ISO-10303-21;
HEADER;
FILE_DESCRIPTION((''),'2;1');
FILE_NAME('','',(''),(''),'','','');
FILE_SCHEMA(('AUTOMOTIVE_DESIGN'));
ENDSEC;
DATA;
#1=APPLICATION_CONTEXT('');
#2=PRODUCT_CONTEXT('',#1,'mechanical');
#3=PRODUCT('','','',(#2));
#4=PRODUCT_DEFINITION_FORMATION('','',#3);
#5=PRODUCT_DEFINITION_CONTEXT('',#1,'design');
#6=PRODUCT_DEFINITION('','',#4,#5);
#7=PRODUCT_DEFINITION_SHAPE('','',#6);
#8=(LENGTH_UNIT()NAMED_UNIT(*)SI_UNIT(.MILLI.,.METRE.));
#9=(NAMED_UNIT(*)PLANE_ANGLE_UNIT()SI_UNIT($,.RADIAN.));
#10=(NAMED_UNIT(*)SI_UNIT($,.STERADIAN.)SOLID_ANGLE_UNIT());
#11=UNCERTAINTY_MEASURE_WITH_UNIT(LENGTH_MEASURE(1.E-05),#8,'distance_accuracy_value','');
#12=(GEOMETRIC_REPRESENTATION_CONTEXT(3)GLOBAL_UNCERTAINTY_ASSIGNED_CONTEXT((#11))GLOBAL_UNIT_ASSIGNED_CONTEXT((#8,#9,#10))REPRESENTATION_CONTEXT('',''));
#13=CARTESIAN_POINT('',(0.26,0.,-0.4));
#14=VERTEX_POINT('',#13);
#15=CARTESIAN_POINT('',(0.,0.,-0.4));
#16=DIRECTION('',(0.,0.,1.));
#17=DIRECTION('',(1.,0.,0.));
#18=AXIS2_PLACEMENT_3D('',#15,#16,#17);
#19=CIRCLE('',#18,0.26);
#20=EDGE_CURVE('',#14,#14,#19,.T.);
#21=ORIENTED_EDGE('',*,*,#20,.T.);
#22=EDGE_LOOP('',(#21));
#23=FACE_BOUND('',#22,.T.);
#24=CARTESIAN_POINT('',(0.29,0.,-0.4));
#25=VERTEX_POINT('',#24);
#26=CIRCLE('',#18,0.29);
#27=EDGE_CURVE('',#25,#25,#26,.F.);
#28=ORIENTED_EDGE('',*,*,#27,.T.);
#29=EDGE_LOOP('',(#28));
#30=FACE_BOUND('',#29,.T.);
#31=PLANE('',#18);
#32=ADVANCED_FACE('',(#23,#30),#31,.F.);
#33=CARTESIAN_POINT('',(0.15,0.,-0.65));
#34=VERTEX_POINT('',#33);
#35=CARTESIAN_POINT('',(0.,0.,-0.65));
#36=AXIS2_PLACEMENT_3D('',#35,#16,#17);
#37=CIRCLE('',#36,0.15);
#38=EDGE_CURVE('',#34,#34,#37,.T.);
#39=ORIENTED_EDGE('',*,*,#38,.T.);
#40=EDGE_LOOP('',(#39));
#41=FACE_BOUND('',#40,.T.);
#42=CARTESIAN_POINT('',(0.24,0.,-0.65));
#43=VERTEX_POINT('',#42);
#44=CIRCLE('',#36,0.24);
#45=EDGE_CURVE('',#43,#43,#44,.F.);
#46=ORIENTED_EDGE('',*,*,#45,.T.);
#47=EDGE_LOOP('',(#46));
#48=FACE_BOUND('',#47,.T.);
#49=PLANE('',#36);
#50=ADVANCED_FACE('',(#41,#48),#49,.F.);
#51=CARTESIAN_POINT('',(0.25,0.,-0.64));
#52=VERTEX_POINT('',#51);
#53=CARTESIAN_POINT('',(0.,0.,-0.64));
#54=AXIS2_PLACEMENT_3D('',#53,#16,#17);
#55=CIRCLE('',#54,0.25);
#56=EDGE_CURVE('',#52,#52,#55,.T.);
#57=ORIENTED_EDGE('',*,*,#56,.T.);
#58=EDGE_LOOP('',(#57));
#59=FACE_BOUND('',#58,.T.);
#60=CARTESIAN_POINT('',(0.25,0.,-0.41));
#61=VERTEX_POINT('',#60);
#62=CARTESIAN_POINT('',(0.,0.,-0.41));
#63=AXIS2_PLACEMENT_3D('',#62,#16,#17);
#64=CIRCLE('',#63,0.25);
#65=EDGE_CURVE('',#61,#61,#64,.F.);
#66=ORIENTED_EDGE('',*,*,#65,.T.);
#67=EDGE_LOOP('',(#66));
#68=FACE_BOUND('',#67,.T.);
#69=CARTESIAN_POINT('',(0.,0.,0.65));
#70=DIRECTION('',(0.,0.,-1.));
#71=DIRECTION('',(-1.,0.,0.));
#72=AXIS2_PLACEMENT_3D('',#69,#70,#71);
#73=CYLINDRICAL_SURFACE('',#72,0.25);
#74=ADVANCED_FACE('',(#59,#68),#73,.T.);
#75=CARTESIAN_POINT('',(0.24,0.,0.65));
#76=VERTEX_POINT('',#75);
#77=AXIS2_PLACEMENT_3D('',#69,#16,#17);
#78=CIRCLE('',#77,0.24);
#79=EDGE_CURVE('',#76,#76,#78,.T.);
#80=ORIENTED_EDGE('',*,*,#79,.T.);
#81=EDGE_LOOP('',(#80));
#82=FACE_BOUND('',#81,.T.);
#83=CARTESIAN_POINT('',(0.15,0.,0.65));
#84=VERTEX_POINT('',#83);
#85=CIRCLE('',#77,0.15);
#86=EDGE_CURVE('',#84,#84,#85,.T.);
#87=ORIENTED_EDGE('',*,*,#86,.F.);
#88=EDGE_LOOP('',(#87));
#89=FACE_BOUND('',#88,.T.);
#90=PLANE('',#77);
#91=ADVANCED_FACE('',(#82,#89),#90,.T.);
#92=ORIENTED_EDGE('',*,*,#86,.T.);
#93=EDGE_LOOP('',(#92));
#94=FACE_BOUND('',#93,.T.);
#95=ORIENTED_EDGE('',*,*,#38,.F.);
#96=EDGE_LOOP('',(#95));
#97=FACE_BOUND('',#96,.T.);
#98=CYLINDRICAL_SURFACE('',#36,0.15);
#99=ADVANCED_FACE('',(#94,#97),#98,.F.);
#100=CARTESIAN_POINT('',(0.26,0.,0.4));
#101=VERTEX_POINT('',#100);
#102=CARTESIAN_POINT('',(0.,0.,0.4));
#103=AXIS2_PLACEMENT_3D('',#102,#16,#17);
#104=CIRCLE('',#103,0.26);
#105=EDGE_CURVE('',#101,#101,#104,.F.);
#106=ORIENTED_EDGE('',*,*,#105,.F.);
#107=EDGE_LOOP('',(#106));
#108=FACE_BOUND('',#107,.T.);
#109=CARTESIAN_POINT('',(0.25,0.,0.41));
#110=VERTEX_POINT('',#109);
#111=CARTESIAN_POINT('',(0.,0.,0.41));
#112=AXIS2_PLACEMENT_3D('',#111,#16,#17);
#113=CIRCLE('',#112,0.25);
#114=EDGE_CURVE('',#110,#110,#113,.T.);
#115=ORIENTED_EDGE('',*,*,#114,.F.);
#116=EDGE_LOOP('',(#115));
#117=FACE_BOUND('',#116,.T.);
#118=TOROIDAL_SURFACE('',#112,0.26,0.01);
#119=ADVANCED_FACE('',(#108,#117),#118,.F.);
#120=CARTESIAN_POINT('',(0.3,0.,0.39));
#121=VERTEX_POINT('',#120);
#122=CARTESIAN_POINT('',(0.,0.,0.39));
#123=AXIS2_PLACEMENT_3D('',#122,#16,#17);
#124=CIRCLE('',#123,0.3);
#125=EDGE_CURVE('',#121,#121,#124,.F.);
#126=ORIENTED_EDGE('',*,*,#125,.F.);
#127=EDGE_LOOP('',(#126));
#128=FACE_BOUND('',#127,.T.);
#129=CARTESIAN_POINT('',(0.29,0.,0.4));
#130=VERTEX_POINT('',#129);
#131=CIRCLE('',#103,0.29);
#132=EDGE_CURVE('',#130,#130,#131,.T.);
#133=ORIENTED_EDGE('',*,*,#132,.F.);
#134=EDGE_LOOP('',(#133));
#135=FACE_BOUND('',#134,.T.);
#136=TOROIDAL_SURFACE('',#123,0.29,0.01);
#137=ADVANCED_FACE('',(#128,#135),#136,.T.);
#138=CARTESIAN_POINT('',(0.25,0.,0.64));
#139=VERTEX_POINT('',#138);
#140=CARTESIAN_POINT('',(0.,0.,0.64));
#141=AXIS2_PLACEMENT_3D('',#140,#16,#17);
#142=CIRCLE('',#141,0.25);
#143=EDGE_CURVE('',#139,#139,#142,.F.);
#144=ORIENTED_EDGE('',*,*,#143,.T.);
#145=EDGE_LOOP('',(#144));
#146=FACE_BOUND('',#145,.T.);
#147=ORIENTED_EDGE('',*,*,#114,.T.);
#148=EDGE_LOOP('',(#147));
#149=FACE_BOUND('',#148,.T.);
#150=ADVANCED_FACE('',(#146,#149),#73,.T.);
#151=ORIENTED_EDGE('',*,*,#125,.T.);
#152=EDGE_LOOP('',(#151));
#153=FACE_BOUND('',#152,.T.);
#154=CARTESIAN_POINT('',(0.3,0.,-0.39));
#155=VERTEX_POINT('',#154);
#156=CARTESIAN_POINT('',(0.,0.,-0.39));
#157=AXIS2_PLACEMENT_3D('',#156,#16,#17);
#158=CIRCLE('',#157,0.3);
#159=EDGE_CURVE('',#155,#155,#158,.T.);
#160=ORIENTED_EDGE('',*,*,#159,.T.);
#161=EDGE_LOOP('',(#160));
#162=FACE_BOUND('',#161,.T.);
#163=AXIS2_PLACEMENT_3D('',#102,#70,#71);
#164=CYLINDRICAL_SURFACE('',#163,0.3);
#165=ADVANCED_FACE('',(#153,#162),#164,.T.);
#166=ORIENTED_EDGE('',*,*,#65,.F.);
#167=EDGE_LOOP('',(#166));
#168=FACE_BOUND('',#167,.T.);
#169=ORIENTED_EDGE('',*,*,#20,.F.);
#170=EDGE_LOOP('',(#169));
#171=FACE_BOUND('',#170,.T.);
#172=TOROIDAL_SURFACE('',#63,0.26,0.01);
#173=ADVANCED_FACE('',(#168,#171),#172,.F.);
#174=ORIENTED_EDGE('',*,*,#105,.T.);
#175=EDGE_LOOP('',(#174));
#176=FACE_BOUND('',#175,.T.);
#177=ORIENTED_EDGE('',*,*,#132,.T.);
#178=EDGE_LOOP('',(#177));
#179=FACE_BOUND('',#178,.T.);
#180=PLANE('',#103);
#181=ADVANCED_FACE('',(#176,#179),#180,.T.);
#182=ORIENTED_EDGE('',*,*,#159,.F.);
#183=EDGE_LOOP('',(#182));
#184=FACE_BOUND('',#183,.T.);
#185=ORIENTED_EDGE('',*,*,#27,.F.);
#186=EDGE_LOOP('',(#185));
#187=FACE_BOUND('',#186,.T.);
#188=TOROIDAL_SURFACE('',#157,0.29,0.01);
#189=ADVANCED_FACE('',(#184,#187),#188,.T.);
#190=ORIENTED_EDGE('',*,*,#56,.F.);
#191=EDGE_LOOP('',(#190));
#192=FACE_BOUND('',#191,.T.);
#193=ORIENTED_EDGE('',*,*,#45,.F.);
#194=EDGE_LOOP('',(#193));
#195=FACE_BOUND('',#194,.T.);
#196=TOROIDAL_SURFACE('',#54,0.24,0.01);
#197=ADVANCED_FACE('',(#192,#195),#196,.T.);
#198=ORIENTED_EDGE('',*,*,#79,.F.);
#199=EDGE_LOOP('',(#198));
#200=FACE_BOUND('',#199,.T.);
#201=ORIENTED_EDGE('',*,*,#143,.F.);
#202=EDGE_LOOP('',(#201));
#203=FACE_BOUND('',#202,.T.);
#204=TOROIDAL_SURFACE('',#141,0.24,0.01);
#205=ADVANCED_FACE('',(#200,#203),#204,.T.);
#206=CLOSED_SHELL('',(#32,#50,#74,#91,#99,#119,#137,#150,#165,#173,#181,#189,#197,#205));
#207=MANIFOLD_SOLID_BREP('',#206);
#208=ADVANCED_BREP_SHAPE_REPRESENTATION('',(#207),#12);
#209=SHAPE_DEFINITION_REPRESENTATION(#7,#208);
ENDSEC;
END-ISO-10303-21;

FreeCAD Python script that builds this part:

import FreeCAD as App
import Part
import Sketcher


def edges_at(feature, points):
    """Names of the edges that pass closest to the given points."""
    edges = feature.Shape.Edges
    near = lambda p: min(range(len(edges)), key=lambda i: edges[i].distToShape(Part.Vertex(*p))[0])
    return sorted({f"Edge{near(p) + 1}" for p in points})

doc = App.newDocument("Part")
body = doc.addObject("PartDesign::Body", "Body")

sketch1 = body.newObject("Sketcher::SketchObject", "Sketch")
sketch1.AttachmentSupport = (doc.getObject("XY_Plane"), [""])
sketch1.MapMode = "FlatFace"
sketch1.addGeometry(Part.Circle(App.Vector(0, 0, 0), App.Vector(0, 0, 1), 0.3), False)
sketch1.addConstraint([
    Sketcher.Constraint("Coincident", 0, 3, -1, 1),
    Sketcher.Constraint("Diameter", 0, 0.6),
])
pad1 = body.newObject("PartDesign::Pad", "Pad")
pad1.Profile = sketch1
pad1.Length = 0.8
pad1.Midplane = True

sketch2 = body.newObject("Sketcher::SketchObject", "Sketch001")
sketch2.AttachmentSupport = (doc.getObject("XY_Plane"), [""])
sketch2.MapMode = "FlatFace"
sketch2.addGeometry(Part.Circle(App.Vector(0, 0, 0), App.Vector(0, 0, 1), 0.25), False)
sketch2.addConstraint([
    Sketcher.Constraint("Coincident", 0, 3, -1, 1),
    Sketcher.Constraint("Diameter", 0, 0.5),
])
pad2 = body.newObject("PartDesign::Pad", "Pad001")
pad2.Profile = sketch2
pad2.Length = 1.3
pad2.Midplane = True

sketch3 = body.newObject("Sketcher::SketchObject", "Sketch002")
sketch3.AttachmentSupport = (doc.getObject("XY_Plane"), [""])
sketch3.MapMode = "FlatFace"
sketch3.AttachmentOffset = App.Placement(App.Vector(0, 0, 0.65), App.Rotation())
sketch3.addGeometry(Part.Circle(App.Vector(0, 0, 0), App.Vector(0, 0, 1), 0.15), False)
sketch3.addConstraint([
    Sketcher.Constraint("Coincident", 0, 3, -1, 1),
    Sketcher.Constraint("Diameter", 0, 0.3),
])
pocket1 = body.newObject("PartDesign::Pocket", "Pocket")
pocket1.Profile = sketch3
pocket1.Type = "ThroughAll"
doc.recompute()

fillet = body.newObject("PartDesign::Fillet", "Fillet")
fillet.Base = (pocket1, edges_at(pocket1, [
    (-0.3, 0, -0.4),
    (-0.3, 0, 0.4),
    (-0.25, 0, -0.65),
    (-0.25, 0, 0.65),
]))
fillet.Radius = 0.01
doc.recompute()

fillet2 = body.newObject("PartDesign::Fillet", "Fillet001")
fillet2.Base = (fillet, edges_at(fillet, [(-0.25, 0, -0.4), (-0.25, 0, 0.4)]))
fillet2.Radius = 0.01

doc.recompute()
